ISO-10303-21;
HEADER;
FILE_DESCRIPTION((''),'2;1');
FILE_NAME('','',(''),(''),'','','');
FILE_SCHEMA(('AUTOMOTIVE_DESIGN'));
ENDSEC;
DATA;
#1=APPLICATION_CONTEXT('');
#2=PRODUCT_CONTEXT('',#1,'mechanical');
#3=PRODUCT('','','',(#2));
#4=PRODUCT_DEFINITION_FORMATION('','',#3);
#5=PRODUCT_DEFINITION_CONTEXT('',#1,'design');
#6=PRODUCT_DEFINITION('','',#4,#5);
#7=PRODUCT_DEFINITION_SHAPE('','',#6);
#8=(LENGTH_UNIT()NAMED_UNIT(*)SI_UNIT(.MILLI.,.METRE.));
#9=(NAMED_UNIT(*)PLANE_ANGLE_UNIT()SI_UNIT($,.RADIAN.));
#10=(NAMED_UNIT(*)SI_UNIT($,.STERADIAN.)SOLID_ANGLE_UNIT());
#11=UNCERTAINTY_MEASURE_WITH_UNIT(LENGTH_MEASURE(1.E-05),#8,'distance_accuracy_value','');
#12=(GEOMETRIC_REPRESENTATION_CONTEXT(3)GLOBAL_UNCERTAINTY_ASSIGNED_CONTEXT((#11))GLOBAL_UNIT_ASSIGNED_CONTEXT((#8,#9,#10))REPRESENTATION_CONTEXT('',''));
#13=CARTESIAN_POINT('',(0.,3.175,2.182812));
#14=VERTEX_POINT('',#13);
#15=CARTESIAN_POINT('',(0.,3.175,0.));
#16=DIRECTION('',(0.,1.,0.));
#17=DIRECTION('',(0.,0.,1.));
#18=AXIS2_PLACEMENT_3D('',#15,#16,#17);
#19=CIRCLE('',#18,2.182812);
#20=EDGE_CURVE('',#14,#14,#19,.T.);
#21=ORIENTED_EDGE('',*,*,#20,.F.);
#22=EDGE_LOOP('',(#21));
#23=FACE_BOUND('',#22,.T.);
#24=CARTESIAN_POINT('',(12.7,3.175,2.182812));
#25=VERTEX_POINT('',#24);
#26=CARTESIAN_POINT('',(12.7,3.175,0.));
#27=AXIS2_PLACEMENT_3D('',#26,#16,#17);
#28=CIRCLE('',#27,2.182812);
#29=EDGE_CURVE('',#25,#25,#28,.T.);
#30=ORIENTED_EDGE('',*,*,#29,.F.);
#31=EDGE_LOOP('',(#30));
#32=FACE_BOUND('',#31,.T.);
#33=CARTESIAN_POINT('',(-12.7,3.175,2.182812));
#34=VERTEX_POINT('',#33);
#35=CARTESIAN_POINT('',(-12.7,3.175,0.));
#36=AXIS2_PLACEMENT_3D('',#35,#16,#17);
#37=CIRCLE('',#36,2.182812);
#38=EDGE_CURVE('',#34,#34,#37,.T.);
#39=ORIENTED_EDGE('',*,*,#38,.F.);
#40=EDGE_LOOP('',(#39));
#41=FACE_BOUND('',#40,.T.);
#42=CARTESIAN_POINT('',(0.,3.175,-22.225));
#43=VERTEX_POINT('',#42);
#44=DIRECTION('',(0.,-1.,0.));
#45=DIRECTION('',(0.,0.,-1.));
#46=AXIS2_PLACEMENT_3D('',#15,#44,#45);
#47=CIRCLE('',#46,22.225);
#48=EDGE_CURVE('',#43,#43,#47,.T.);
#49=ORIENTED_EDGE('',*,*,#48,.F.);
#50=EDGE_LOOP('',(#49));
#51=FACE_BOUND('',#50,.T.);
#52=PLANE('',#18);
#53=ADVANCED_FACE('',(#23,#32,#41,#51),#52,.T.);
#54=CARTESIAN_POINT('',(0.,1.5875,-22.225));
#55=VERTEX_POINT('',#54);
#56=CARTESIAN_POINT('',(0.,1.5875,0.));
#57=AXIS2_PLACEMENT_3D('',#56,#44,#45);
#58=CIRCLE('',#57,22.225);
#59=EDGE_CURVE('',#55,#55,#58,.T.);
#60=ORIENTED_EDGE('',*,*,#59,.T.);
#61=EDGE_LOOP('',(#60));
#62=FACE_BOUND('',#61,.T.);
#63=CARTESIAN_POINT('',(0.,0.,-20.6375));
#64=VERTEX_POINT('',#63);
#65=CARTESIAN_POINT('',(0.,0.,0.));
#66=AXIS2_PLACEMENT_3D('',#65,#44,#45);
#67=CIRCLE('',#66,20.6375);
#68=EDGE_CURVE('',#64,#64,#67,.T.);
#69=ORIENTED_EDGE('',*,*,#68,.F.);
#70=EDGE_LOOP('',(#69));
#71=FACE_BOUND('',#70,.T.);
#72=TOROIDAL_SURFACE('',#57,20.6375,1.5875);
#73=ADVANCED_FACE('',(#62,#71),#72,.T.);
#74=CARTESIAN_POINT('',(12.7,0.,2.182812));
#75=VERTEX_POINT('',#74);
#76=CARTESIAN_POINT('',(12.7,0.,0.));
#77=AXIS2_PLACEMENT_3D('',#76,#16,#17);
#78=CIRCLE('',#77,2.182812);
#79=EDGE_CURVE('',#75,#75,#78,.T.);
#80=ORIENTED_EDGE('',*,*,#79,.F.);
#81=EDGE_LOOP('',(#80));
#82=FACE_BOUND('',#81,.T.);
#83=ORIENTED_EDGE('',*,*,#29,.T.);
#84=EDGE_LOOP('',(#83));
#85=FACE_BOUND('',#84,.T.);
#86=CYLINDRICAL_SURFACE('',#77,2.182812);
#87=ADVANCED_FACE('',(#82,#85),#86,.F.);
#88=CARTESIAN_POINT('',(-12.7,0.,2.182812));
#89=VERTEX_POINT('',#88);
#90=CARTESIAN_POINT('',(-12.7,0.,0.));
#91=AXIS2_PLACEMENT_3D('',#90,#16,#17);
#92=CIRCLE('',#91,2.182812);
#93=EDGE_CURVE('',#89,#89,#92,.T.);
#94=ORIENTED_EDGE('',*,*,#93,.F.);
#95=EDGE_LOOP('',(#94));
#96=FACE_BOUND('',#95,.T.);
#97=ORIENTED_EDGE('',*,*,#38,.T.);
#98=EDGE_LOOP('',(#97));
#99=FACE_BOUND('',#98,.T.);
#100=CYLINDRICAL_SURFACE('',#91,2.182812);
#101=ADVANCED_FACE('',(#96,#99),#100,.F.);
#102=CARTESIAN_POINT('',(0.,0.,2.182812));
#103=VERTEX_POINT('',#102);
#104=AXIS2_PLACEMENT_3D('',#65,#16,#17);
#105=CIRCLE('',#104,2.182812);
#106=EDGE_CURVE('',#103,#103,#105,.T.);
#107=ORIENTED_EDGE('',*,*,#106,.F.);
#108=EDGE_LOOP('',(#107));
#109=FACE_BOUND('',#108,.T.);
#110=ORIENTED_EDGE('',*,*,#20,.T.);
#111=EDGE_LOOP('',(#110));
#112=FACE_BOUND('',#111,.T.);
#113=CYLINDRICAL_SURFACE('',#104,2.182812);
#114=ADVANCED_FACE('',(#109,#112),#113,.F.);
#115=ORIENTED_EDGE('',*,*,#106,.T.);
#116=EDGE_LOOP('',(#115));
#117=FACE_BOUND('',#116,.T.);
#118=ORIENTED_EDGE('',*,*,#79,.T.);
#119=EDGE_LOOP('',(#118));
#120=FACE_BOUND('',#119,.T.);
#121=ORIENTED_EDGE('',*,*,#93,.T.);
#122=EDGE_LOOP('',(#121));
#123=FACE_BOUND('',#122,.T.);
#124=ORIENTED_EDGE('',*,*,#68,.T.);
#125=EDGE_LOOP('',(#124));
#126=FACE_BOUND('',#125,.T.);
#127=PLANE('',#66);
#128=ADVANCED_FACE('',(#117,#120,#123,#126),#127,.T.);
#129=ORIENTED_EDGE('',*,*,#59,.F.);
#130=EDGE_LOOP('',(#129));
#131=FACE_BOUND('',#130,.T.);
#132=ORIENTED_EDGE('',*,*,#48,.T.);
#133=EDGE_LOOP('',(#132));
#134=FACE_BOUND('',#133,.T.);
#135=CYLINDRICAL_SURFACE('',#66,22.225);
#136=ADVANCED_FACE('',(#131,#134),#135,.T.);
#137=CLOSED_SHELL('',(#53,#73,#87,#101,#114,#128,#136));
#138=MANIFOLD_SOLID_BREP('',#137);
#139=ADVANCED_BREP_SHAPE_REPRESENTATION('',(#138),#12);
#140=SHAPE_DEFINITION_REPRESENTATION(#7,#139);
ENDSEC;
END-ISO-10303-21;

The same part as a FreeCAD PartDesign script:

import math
import FreeCAD as App
import Part
import Sketcher
Q = App.Units.Quantity

doc = App.newDocument("Part")
body = doc.addObject("PartDesign::Body", "Body")

# Sketch on XY plane
sketch1 = body.newObject("Sketcher::SketchObject", "Sketch")
sketch1.AttachmentSupport = (doc.getObject("XY_Plane"), [""])
sketch1.MapMode = "FlatFace"
sketch1.addGeometry([
    Part.LineSegment(App.Vector(0, 0, 0), App.Vector(20.6, 0, 0)),  # 0
    Part.ArcOfCircle(Part.Circle(App.Vector(20.6, 1.6, 0), App.Vector(0, 0, 1), 1.6), math.radians(-90), math.radians(0)),  # 1
    Part.LineSegment(App.Vector(22.2, 1.6, 0), App.Vector(22.2, 3.2, 0)),  # 2
    Part.LineSegment(App.Vector(22.2, 3.2, 0), App.Vector(0, 3.2, 0)),  # 3
    Part.LineSegment(App.Vector(0, 3.2, 0), App.Vector(0, 0, 0)),  # 4
], False)
sketch1.addConstraint([
    Sketcher.Constraint("Tangent", 0, 2, 1, 1),
    Sketcher.Constraint("Tangent", 1, 2, 2, 1),
    Sketcher.Constraint("Coincident", 2, 2, 3, 1),
    Sketcher.Constraint("Coincident", 3, 2, 4, 1),
    Sketcher.Constraint("Coincident", 4, 2, 0, 1),
    Sketcher.Constraint("Horizontal", 0),
    Sketcher.Constraint("Vertical", 2),
    Sketcher.Constraint("Horizontal", 3),
    Sketcher.Constraint("Vertical", 4),
    Sketcher.Constraint("Coincident", 4, 2, -1, 1),
    Sketcher.Constraint("Radius", 1, Q("0.0625 in")),
    Sketcher.Constraint("DistanceX", 0, 1, 0, 2, Q("0.8125 in")),
    Sketcher.Constraint("DistanceY", 2, 1, 2, 2, Q("0.0625 in")),
])
revolution = body.newObject("PartDesign::Revolution", "Revolution")
revolution.Profile = sketch1
revolution.ReferenceAxis = (sketch1, ["V_Axis"])
revolution.Angle = 360

# Sketch on XZ plane
sketch2 = body.newObject("Sketcher::SketchObject", "Sketch001")
sketch2.AttachmentSupport = (doc.getObject("XZ_Plane"), [""])
sketch2.MapMode = "FlatFace"
sketch2.AttachmentOffset = App.Placement(App.Vector(0, 0, -0.125 * 25.4), App.Rotation())
sketch2.addGeometry([
    Part.Circle(App.Vector(0, 0, 0), App.Vector(0, 0, 1), 2.2),
    Part.Circle(App.Vector(12.7, 0, 0), App.Vector(0, 0, 1), 2.2),
    Part.Circle(App.Vector(-12.7, 0, 0), App.Vector(0, 0, 1), 2.2),
], False)
sketch2.addConstraint([
    Sketcher.Constraint("Coincident", 0, 3, -1, 1),
    Sketcher.Constraint("Equal", 0, 1),
    Sketcher.Constraint("Equal", 1, 2),
    Sketcher.Constraint("Symmetric", 1, 3, 2, 3, -1, 1),
    Sketcher.Constraint("PointOnObject", 1, 3, -1),
    Sketcher.Constraint("Diameter", 0, Q("0.171875 in")),
    Sketcher.Constraint("DistanceX", 2, 3, 1, 3, Q("1 in")),
])
pocket1 = body.newObject("PartDesign::Pocket", "Pocket")
pocket1.Profile = sketch2
pocket1.Type = "ThroughAll"
pocket1.Midplane = True

doc.recompute()
